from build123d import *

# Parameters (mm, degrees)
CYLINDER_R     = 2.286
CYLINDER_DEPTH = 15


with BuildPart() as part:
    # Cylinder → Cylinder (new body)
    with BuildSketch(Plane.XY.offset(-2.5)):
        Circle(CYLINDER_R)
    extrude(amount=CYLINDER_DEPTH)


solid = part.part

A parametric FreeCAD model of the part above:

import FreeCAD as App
import Part
import Sketcher
from FreeCAD import Vector
Q = App.Units.Quantity

doc = App.newDocument("Part")
body = doc.addObject("PartDesign::Body", "Body")

sketch1 = doc.addObject("Sketcher::SketchObject", "Sketch")
body.addObject(sketch1)
sketch1.AttachmentSupport = (doc.XY_Plane, [""])
sketch1.MapMode = "FlatFace"
sketch1.AttachmentOffset = App.Placement(Vector(0, 0, -2.5), App.Rotation())
sketch1.addGeometry(Part.Circle(Vector(0, 0, 0), Vector(0, 0, 1), 2.286), False)
sketch1.addConstraint([
    Sketcher.Constraint("Coincident", 0, 3, -1, 1),
    Sketcher.Constraint("Diameter", 0, Q("4.572 mm")),
])
pad1 = doc.addObject("PartDesign::Pad", "Pad")
body.addObject(pad1)
pad1.Profile = sketch1
pad1.Length = 15

doc.recompute()
